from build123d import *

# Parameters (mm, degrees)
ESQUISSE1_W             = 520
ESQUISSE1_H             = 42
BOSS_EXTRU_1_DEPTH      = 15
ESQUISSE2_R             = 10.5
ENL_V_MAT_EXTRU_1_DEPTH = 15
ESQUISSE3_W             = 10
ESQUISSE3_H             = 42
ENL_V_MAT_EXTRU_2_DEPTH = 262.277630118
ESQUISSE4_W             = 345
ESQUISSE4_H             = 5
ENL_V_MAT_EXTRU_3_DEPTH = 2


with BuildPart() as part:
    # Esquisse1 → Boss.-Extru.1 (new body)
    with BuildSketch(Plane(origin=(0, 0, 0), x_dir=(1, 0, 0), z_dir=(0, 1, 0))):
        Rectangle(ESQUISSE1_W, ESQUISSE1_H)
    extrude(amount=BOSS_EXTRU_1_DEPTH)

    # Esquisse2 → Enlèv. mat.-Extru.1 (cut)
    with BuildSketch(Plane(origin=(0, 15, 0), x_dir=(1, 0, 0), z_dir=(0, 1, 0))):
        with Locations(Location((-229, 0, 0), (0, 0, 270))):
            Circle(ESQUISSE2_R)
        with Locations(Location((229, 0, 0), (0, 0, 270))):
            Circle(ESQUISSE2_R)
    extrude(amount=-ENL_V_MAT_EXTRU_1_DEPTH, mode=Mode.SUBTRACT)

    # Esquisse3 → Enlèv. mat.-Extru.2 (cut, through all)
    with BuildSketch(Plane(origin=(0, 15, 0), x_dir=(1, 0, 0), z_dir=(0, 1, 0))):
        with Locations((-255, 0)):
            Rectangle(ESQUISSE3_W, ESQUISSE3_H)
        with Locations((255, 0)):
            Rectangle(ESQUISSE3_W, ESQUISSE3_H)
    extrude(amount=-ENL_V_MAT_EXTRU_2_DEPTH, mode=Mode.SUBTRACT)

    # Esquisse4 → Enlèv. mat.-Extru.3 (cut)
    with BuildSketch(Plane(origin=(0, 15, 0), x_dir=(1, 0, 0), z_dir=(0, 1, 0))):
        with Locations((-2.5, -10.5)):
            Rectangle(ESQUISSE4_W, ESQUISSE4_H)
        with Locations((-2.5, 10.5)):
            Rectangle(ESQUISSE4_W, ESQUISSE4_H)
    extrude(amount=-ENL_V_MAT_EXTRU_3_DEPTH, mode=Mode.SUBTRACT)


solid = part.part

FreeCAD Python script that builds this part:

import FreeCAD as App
import Part
import Sketcher

V = App.Vector

doc = App.newDocument("Part")
params = doc.addObject("Spreadsheet::Sheet", "Params")
for row, (alias, value) in enumerate([
    ("sketch1_width", "520 mm"),
    ("sketch1_height", "42 mm"),
    ("pad1_length", "15 mm"),
    ("sketch2_diameter", "21 mm"),
    ("pocket1_length", "15 mm"),
    ("sketch3_width", "10 mm"),
    ("sketch3_height", "42 mm"),
    ("sketch4_width", "345 mm"),
    ("sketch4_height", "5 mm"),
    ("pocket3_length", "2 mm"),
], start=1):
    params.set(f"A{row}", alias)
    params.set(f"B{row}", "=" + value)
    params.setAlias(f"B{row}", alias)

body = doc.addObject("PartDesign::Body", "Body")

sketch1 = body.newObject("Sketcher::SketchObject", "Sketch")
sketch1.AttachmentSupport = (doc.getObject("XZ_Plane"), [""])
sketch1.MapMode = "FlatFace"
sketch1.addGeometry([
    Part.LineSegment(V(-260, -21, 0), V(-260, 21, 0)),
    Part.LineSegment(V(-260, 21, 0), V(260, 21, 0)),
    Part.LineSegment(V(260, 21, 0), V(260, -21, 0)),
    Part.LineSegment(V(260, -21, 0), V(-260, -21, 0)),
], False)
sketch1.addConstraint([
    Sketcher.Constraint("Coincident", 0, 2, 1, 1),
    Sketcher.Constraint("Coincident", 1, 2, 2, 1),
    Sketcher.Constraint("Coincident", 2, 2, 3, 1),
    Sketcher.Constraint("Coincident", 3, 2, 0, 1),
    Sketcher.Constraint("Vertical", 0),
    Sketcher.Constraint("Horizontal", 1),
    Sketcher.Constraint("Vertical", 2),
    Sketcher.Constraint("Horizontal", 3),
    Sketcher.Constraint("Symmetric", 0, 2, 2, 2, -1, 1),
    Sketcher.Constraint("DistanceX", 1, 1, 1, 2, 520.0),
    Sketcher.Constraint("DistanceY", 0, 1, 0, 2, 42.0),
])
sketch1.setExpression("Constraints[9]", "Params.sketch1_width")
sketch1.setExpression("Constraints[10]", "Params.sketch1_height")
pad1 = body.newObject("PartDesign::Pad", "Pad")
pad1.Profile = sketch1
pad1.setExpression("Length", "Params.pad1_length")
pad1.Reversed = True

sketch2 = body.newObject("Sketcher::SketchObject", "Sketch001")
sketch2.AttachmentSupport = (doc.getObject("XZ_Plane"), [""])
sketch2.MapMode = "FlatFace"
sketch2.AttachmentOffset = App.Placement(V(0, 0, -15), App.Rotation())
sketch2.addGeometry([
    Part.Circle(V(-229, 0, 0), V(0, 0, 1), 10),
    Part.Circle(V(229, 0, 0), V(0, 0, 1), 10),
], False)
sketch2.addConstraint([
    Sketcher.Constraint("Equal", 0, 1),
    Sketcher.Constraint("Symmetric", 0, 3, 1, 3, -1, 1),
    Sketcher.Constraint("PointOnObject", 0, 3, -1),
    Sketcher.Constraint("Diameter", 0, 21.0),
    Sketcher.Constraint("DistanceX", 0, 3, -1, 1, 229.0),
])
sketch2.setExpression("Constraints[3]", "Params.sketch2_diameter")
pocket1 = body.newObject("PartDesign::Pocket", "Pocket")
pocket1.Profile = sketch2
pocket1.setExpression("Length", "Params.pocket1_length")
pocket1.Reversed = True

sketch3 = body.newObject("Sketcher::SketchObject", "Sketch002")
sketch3.AttachmentSupport = (doc.getObject("XZ_Plane"), [""])
sketch3.MapMode = "FlatFace"
sketch3.AttachmentOffset = App.Placement(V(0, 0, -15), App.Rotation())
sketch3.addGeometry([
    Part.LineSegment(V(-260, -21, 0), V(-260, 21, 0)),
    Part.LineSegment(V(-260, 21, 0), V(-250, 21, 0)),
    Part.LineSegment(V(-250, 21, 0), V(-250, -21, 0)),
    Part.LineSegment(V(-250, -21, 0), V(-260, -21, 0)),
    Part.LineSegment(V(250, -21, 0), V(250, 21, 0)),
    Part.LineSegment(V(250, 21, 0), V(260, 21, 0)),
    Part.LineSegment(V(260, 21, 0), V(260, -21, 0)),
    Part.LineSegment(V(260, -21, 0), V(250, -21, 0)),
], False)
sketch3.addConstraint([
    Sketcher.Constraint("Coincident", 0, 2, 1, 1),
    Sketcher.Constraint("Coincident", 1, 2, 2, 1),
    Sketcher.Constraint("Coincident", 2, 2, 3, 1),
    Sketcher.Constraint("Coincident", 3, 2, 0, 1),
    Sketcher.Constraint("Coincident", 4, 2, 5, 1),
    Sketcher.Constraint("Coincident", 5, 2, 6, 1),
    Sketcher.Constraint("Coincident", 6, 2, 7, 1),
    Sketcher.Constraint("Coincident", 7, 2, 4, 1),
    Sketcher.Constraint("Vertical", 0),
    Sketcher.Constraint("Horizontal", 1),
    Sketcher.Constraint("Vertical", 2),
    Sketcher.Constraint("Horizontal", 3),
    Sketcher.Constraint("Vertical", 4),
    Sketcher.Constraint("Horizontal", 5),
    Sketcher.Constraint("Vertical", 6),
    Sketcher.Constraint("Horizontal", 7),
    Sketcher.Constraint("Symmetric", 2, 2, 4, 2, -1, 1),
    Sketcher.Constraint("Symmetric", 0, 2, 6, 2, -1, 1),
    Sketcher.Constraint("Horizontal", 1, 2, 4, 2),
    Sketcher.Constraint("DistanceX", 1, 1, 1, 2, 10.0),
    Sketcher.Constraint("DistanceY", 0, 1, 0, 2, 42.0),
    Sketcher.Constraint("DistanceX", 0, 2, -1, 1, 260.0),
])
sketch3.setExpression("Constraints[19]", "Params.sketch3_width")
sketch3.setExpression("Constraints[20]", "Params.sketch3_height")
pocket2 = body.newObject("PartDesign::Pocket", "Pocket001")
pocket2.Profile = sketch3
pocket2.Type = "ThroughAll"
pocket2.Reversed = True

sketch4 = body.newObject("Sketcher::SketchObject", "Sketch003")
sketch4.AttachmentSupport = (doc.getObject("XZ_Plane"), [""])
sketch4.MapMode = "FlatFace"
sketch4.AttachmentOffset = App.Placement(V(0, 0, -15), App.Rotation())
sketch4.addGeometry([
    Part.LineSegment(V(-175, 8, 0), V(-175, 13, 0)),
    Part.LineSegment(V(-175, 13, 0), V(170, 13, 0)),
    Part.LineSegment(V(170, 13, 0), V(170, 8, 0)),
    Part.LineSegment(V(170, 8, 0), V(-175, 8, 0)),
    Part.LineSegment(V(-175, -13, 0), V(-175, -8, 0)),
    Part.LineSegment(V(-175, -8, 0), V(170, -8, 0)),
    Part.LineSegment(V(170, -8, 0), V(170, -13, 0)),
    Part.LineSegment(V(170, -13, 0), V(-175, -13, 0)),
], False)
sketch4.addConstraint([
    Sketcher.Constraint("Coincident", 0, 2, 1, 1),
    Sketcher.Constraint("Coincident", 1, 2, 2, 1),
    Sketcher.Constraint("Coincident", 2, 2, 3, 1),
    Sketcher.Constraint("Coincident", 3, 2, 0, 1),
    Sketcher.Constraint("Coincident", 4, 2, 5, 1),
    Sketcher.Constraint("Coincident", 5, 2, 6, 1),
    Sketcher.Constraint("Coincident", 6, 2, 7, 1),
    Sketcher.Constraint("Coincident", 7, 2, 4, 1),
    Sketcher.Constraint("Vertical", 0),
    Sketcher.Constraint("Horizontal", 1),
    Sketcher.Constraint("Vertical", 2),
    Sketcher.Constraint("Horizontal", 3),
    Sketcher.Constraint("Vertical", 4),
    Sketcher.Constraint("Horizontal", 5),
    Sketcher.Constraint("Vertical", 6),
    Sketcher.Constraint("Horizontal", 7),
    Sketcher.Constraint("Symmetric", 3, 2, 4, 2, -1),
    Sketcher.Constraint("Symmetric", 1, 2, 6, 2, -1),
    Sketcher.Constraint("DistanceX", 1, 1, 1, 2, 345.0),
    Sketcher.Constraint("DistanceY", 0, 1, 0, 2, 5.0),
    Sketcher.Constraint("DistanceX", 0, 2, -1, 1, 175.0),
    Sketcher.Constraint("DistanceY", -1, 1, 0, 2, 13.0),
])
sketch4.setExpression("Constraints[18]", "Params.sketch4_width")
sketch4.setExpression("Constraints[19]", "Params.sketch4_height")
pocket3 = body.newObject("PartDesign::Pocket", "Pocket002")
pocket3.Profile = sketch4
pocket3.setExpression("Length", "Params.pocket3_length")
pocket3.Reversed = True

doc.recompute()
